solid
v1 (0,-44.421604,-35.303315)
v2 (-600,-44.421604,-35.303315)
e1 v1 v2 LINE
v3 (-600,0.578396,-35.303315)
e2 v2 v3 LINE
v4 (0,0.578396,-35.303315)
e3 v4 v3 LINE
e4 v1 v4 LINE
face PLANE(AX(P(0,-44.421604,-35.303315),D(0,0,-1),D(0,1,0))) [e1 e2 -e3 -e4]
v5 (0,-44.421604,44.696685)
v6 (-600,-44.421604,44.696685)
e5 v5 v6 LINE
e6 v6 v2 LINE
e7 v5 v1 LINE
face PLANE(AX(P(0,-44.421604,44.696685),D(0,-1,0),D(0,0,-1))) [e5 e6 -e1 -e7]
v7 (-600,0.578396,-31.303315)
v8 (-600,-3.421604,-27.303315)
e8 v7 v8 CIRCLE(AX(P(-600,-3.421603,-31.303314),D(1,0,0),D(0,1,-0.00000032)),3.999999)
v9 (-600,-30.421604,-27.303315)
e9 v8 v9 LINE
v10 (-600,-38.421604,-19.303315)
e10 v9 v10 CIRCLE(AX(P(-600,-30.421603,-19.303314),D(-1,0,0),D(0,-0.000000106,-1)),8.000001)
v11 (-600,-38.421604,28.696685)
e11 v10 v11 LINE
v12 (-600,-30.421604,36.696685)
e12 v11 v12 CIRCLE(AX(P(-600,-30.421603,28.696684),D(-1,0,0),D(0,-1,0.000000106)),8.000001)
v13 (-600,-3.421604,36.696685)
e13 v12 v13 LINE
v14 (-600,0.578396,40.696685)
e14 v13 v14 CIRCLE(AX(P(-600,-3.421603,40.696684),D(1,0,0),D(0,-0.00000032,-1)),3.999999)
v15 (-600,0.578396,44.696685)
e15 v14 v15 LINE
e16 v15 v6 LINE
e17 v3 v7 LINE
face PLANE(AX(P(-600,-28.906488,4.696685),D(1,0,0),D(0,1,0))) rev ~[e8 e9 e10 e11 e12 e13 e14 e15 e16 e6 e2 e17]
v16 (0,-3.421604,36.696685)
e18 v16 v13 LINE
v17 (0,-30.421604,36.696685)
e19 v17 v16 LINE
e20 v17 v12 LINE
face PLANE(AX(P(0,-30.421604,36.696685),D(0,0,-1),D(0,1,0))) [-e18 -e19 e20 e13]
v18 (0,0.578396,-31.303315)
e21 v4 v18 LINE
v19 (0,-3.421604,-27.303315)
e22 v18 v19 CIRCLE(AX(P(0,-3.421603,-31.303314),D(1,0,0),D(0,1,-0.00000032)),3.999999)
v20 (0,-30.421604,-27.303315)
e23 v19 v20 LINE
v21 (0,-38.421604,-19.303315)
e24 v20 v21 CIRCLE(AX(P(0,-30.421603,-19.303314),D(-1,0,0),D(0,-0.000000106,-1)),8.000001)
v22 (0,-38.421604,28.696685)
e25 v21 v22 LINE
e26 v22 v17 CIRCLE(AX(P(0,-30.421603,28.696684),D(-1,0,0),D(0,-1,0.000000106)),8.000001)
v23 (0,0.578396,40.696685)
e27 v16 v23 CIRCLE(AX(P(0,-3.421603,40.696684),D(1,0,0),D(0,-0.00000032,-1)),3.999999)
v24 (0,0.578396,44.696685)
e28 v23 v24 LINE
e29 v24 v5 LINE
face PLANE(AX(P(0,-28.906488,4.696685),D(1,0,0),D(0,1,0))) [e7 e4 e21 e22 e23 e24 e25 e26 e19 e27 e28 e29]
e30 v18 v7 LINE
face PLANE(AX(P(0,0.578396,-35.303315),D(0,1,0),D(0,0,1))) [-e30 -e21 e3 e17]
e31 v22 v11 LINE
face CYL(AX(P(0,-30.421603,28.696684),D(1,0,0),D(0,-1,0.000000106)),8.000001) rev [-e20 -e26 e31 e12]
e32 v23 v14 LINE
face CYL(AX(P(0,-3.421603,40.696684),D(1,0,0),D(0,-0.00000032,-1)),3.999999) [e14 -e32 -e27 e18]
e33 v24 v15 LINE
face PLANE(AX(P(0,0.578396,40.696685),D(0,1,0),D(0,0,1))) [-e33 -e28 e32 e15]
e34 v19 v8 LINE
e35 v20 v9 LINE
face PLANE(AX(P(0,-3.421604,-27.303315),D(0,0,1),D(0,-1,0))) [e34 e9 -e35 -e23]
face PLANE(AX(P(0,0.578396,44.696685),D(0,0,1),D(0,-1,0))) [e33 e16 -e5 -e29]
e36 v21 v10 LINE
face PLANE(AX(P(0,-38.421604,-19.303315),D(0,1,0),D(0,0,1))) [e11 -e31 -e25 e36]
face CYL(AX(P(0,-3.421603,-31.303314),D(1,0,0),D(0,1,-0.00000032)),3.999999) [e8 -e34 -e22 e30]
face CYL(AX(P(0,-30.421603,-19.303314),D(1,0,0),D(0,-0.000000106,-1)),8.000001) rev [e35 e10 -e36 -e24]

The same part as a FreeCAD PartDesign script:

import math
import FreeCAD as App
import Part
import Sketcher

V = App.Vector
Q = App.Units.Quantity

doc = App.newDocument("Part")
body = doc.addObject("PartDesign::Body", "Body")

# Sketch on YZ plane
sketch1 = body.newObject("Sketcher::SketchObject", "Sketch")
sketch1.AttachmentSupport = (doc.getObject("YZ_Plane"), [""])
sketch1.MapMode = "FlatFace"
sketch1.addGeometry(Part.LineSegment(V(0.6, 40.7, 0), V(0.6, 44.7, 0)), False)
sketch1.addGeometry(Part.LineSegment(V(0.6, 44.7, 0), V(-44.4, 44.7, 0)), False)
sketch1.addGeometry(Part.LineSegment(V(-44.4, 44.7, 0), V(-44.4, -35.3, 0)), False)
sketch1.addGeometry(Part.LineSegment(V(-44.4, -35.3, 0), V(0.6, -35.3, 0)), False)
sketch1.addGeometry(Part.LineSegment(V(0.6, -35.3, 0), V(0.6, -31.3, 0)), False)
sketch1.addGeometry(Part.ArcOfCircle(Part.Circle(V(-3.4, -31.3, 0), V(0, 0, 1), 4), math.radians(0), math.radians(90)), False)
sketch1.addGeometry(Part.LineSegment(V(-3.4, -27.3, 0), V(-30.4, -27.3, 0)), False)
sketch1.addGeometry(Part.ArcOfCircle(Part.Circle(V(-30.4, -19.3, 0), V(0, 0, 1), 8), math.radians(-180), math.radians(-90)), False)
sketch1.addGeometry(Part.LineSegment(V(-38.4, -19.3, 0), V(-38.4, 28.7, 0)), False)
sketch1.addGeometry(Part.ArcOfCircle(Part.Circle(V(-30.4, 28.7, 0), V(0, 0, 1), 8), math.radians(90), math.radians(180)), False)
sketch1.addGeometry(Part.LineSegment(V(-30.4, 36.7, 0), V(-3.4, 36.7, 0)), False)
sketch1.addGeometry(Part.ArcOfCircle(Part.Circle(V(-3.4, 40.7, 0), V(0, 0, 1), 4), math.radians(-90), math.radians(0)), False)
sketch1.addConstraint(Sketcher.Constraint("Coincident", 0, 2, 1, 1))
sketch1.addConstraint(Sketcher.Constraint("Coincident", 1, 2, 2, 1))
sketch1.addConstraint(Sketcher.Constraint("Coincident", 2, 2, 3, 1))
sketch1.addConstraint(Sketcher.Constraint("Coincident", 3, 2, 4, 1))
sketch1.addConstraint(Sketcher.Constraint("Tangent", 4, 2, 5, 1))
sketch1.addConstraint(Sketcher.Constraint("Tangent", 5, 2, 6, 1))
sketch1.addConstraint(Sketcher.Constraint("Tangent", 6, 2, 7, 2))
sketch1.addConstraint(Sketcher.Constraint("Tangent", 7, 1, 8, 1))
sketch1.addConstraint(Sketcher.Constraint("Tangent", 8, 2, 9, 2))
sketch1.addConstraint(Sketcher.Constraint("Tangent", 9, 1, 10, 1))
sketch1.addConstraint(Sketcher.Constraint("Tangent", 10, 2, 11, 1))
sketch1.addConstraint(Sketcher.Constraint("Tangent", 11, 2, 0, 1))
sketch1.addConstraint(Sketcher.Constraint("Vertical", 0))
sketch1.addConstraint(Sketcher.Constraint("Horizontal", 1))
sketch1.addConstraint(Sketcher.Constraint("Vertical", 2))
sketch1.addConstraint(Sketcher.Constraint("Horizontal", 3))
sketch1.addConstraint(Sketcher.Constraint("Vertical", 4))
sketch1.addConstraint(Sketcher.Constraint("Horizontal", 6))
sketch1.addConstraint(Sketcher.Constraint("Vertical", 8))
sketch1.addConstraint(Sketcher.Constraint("Horizontal", 10))
sketch1.addConstraint(Sketcher.Constraint("Equal", 7, 9))
sketch1.addConstraint(Sketcher.Constraint("Equal", 5, 11))
sketch1.addConstraint(Sketcher.Constraint("Vertical", 5, 3, 11, 3))
sketch1.addConstraint(Sketcher.Constraint("Equal", 0, 4))
sketch1.addConstraint(Sketcher.Constraint("Radius", 5, Q("3.999999 mm")))
sketch1.addConstraint(Sketcher.Constraint("Radius", 7, Q("8.000001 mm")))
sketch1.addConstraint(Sketcher.Constraint("DistanceX", 1, 2, 1, 1, Q("45 mm")))
sketch1.addConstraint(Sketcher.Constraint("DistanceX", 6, 2, 6, 1, Q("27 mm")))
sketch1.addConstraint(Sketcher.Constraint("DistanceY", 0, 1, 0, 2, Q("4 mm")))
sketch1.addConstraint(Sketcher.Constraint("DistanceY", 2, 2, 2, 1, Q("80 mm")))
sketch1.addConstraint(Sketcher.Constraint("DistanceX", 5, 3, -1, 1, Q("3.421603 mm")))
sketch1.addConstraint(Sketcher.Constraint("DistanceY", 5, 3, -1, 1, Q("31.303314 mm")))
pad1 = body.newObject("PartDesign::Pad", "Pad")
pad1.Profile = sketch1
pad1.Length = 600
pad1.Reversed = True

doc.recompute()
